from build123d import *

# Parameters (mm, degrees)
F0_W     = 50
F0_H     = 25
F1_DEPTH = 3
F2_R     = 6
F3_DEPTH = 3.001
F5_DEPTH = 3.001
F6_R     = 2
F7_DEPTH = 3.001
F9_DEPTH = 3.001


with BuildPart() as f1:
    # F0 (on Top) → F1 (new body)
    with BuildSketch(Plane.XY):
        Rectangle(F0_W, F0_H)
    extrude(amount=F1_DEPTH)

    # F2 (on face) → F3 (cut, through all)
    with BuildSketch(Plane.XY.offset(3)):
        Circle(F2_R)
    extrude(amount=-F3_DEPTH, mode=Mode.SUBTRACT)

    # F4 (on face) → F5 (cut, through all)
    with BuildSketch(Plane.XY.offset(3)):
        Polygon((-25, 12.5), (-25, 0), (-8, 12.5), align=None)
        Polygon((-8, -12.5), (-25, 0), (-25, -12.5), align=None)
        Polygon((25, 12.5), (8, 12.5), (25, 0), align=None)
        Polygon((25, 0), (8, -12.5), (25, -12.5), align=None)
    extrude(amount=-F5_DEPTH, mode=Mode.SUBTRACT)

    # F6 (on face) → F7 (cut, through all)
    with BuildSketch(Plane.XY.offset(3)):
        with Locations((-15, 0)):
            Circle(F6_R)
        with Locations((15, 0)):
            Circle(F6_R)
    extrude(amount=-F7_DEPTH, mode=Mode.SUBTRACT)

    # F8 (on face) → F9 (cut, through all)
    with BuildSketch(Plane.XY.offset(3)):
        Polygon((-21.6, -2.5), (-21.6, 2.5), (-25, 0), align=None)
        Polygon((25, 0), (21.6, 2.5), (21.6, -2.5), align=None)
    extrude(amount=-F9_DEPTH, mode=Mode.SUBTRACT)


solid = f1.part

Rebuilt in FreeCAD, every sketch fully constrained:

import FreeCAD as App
import Part
import Sketcher

V = App.Vector
Q = App.Units.Quantity


def add_polygon(sketch, points):
    """Adds a closed chain of lines whose ends are joined by coincident constraints."""
    first, n = sketch.GeometryCount, len(points)
    for a, b in zip(points, points[1:] + points[:1]):
        sketch.addGeometry(Part.LineSegment(App.Vector(*a, 0), App.Vector(*b, 0)), False)
    for i in range(n):
        sketch.addConstraint(Sketcher.Constraint("Coincident", first + i, 2, first + (i + 1) % n, 1))

doc = App.newDocument("Part")
body = doc.addObject("PartDesign::Body", "Body")

# Sketch on XY plane
sketch1 = body.newObject("Sketcher::SketchObject", "Sketch")
sketch1.AttachmentSupport = (doc.getObject("XY_Plane"), [""])
sketch1.MapMode = "FlatFace"
add_polygon(sketch1, [(-25, 12), (-25, -12), (25, -12), (25, 12)])  # lines 0-3
sketch1.addConstraint(Sketcher.Constraint("Vertical", 0))
sketch1.addConstraint(Sketcher.Constraint("Horizontal", 1))
sketch1.addConstraint(Sketcher.Constraint("Vertical", 2))
sketch1.addConstraint(Sketcher.Constraint("Horizontal", 3))
sketch1.addConstraint(Sketcher.Constraint("Symmetric", 0, 2, 2, 2, -1, 1))
sketch1.addConstraint(Sketcher.Constraint("DistanceX", 1, 1, 1, 2, Q("50 mm")))
sketch1.addConstraint(Sketcher.Constraint("DistanceY", 0, 2, 0, 1, Q("25 mm")))
pad1 = body.newObject("PartDesign::Pad", "Pad")
pad1.Profile = sketch1
pad1.Length = 3

# Sketch on XY plane
sketch2 = body.newObject("Sketcher::SketchObject", "Sketch001")
sketch2.AttachmentSupport = (doc.getObject("XY_Plane"), [""])
sketch2.MapMode = "FlatFace"
sketch2.AttachmentOffset = App.Placement(V(0, 0, 3), App.Rotation())
sketch2.addGeometry(Part.Circle(V(0, 0, 0), V(0, 0, 1), 6), False)
sketch2.addConstraint(Sketcher.Constraint("Coincident", 0, 3, -1, 1))
sketch2.addConstraint(Sketcher.Constraint("Diameter", 0, Q("12 mm")))
pocket1 = body.newObject("PartDesign::Pocket", "Pocket")
pocket1.Profile = sketch2
pocket1.Type = "ThroughAll"

# Sketch on XY plane
sketch3 = body.newObject("Sketcher::SketchObject", "Sketch002")
sketch3.AttachmentSupport = (doc.getObject("XY_Plane"), [""])
sketch3.MapMode = "FlatFace"
sketch3.AttachmentOffset = App.Placement(V(0, 0, 3), App.Rotation())
add_polygon(sketch3, [(-25, 12), (-25, 0), (-8, 12)])  # lines 0-2
add_polygon(sketch3, [(-8, -12), (-25, 0), (-25, -12)])  # lines 3-5
add_polygon(sketch3, [(25, 12), (8, 12), (25, 0)])  # lines 6-8
add_polygon(sketch3, [(25, 0), (8, -12), (25, -12)])  # lines 9-11
sketch3.addConstraint(Sketcher.Constraint("Vertical", 0))
sketch3.addConstraint(Sketcher.Constraint("Horizontal", 2))
sketch3.addConstraint(Sketcher.Constraint("Vertical", 4))
sketch3.addConstraint(Sketcher.Constraint("Horizontal", 5))
sketch3.addConstraint(Sketcher.Constraint("Horizontal", 6))
sketch3.addConstraint(Sketcher.Constraint("Vertical", 8))
sketch3.addConstraint(Sketcher.Constraint("Horizontal", 10))
sketch3.addConstraint(Sketcher.Constraint("Vertical", 11))
sketch3.addConstraint(Sketcher.Constraint("Coincident", 3, 2, 0, 2))
sketch3.addConstraint(Sketcher.Constraint("Coincident", 11, 2, 7, 2))
sketch3.addConstraint(Sketcher.Constraint("Symmetric", 5, 2, 6, 2, -1, 1))
sketch3.addConstraint(Sketcher.Constraint("Symmetric", 0, 2, 7, 2, -1, 1))
sketch3.addConstraint(Sketcher.Constraint("Symmetric", 1, 2, 9, 2, -1, 1))
sketch3.addConstraint(Sketcher.Constraint("Symmetric", 1, 2, 6, 2, -2))
sketch3.addConstraint(Sketcher.Constraint("PointOnObject", 0, 2, -1))
sketch3.addConstraint(Sketcher.Constraint("DistanceX", 2, 2, 2, 1, Q("17 mm")))
sketch3.addConstraint(Sketcher.Constraint("DistanceY", 0, 2, 0, 1, Q("12.5 mm")))
sketch3.addConstraint(Sketcher.Constraint("DistanceX", 0, 2, -1, 1, Q("25 mm")))
pocket2 = body.newObject("PartDesign::Pocket", "Pocket001")
pocket2.Profile = sketch3
pocket2.Type = "ThroughAll"

# Sketch on XY plane
sketch4 = body.newObject("Sketcher::SketchObject", "Sketch003")
sketch4.AttachmentSupport = (doc.getObject("XY_Plane"), [""])
sketch4.MapMode = "FlatFace"
sketch4.AttachmentOffset = App.Placement(V(0, 0, 3), App.Rotation())
sketch4.addGeometry(Part.Circle(V(-15, 0, 0), V(0, 0, 1), 2), False)
sketch4.addGeometry(Part.Circle(V(15, 0, 0), V(0, 0, 1), 2), False)
sketch4.addConstraint(Sketcher.Constraint("Equal", 0, 1))
sketch4.addConstraint(Sketcher.Constraint("Symmetric", 0, 3, 1, 3, -1, 1))
sketch4.addConstraint(Sketcher.Constraint("PointOnObject", 0, 3, -1))
sketch4.addConstraint(Sketcher.Constraint("Diameter", 0, Q("4 mm")))
sketch4.addConstraint(Sketcher.Constraint("DistanceX", 0, 3, -1, 1, Q("15 mm")))
pocket3 = body.newObject("PartDesign::Pocket", "Pocket002")
pocket3.Profile = sketch4
pocket3.Type = "ThroughAll"

# Sketch on XY plane
sketch5 = body.newObject("Sketcher::SketchObject", "Sketch004")
sketch5.AttachmentSupport = (doc.getObject("XY_Plane"), [""])
sketch5.MapMode = "FlatFace"
sketch5.AttachmentOffset = App.Placement(V(0, 0, 3), App.Rotation())
add_polygon(sketch5, [(-21.6, -2.5), (-21.6, 2.5), (-25, 0)])  # lines 0-2
add_polygon(sketch5, [(25, 0), (21.6, 2.5), (21.6, -2.5)])  # lines 3-5
sketch5.addConstraint(Sketcher.Constraint("Vertical", 0))
sketch5.addConstraint(Sketcher.Constraint("Vertical", 4))
sketch5.addConstraint(Sketcher.Constraint("Symmetric", 2, 2, 3, 2, -1, 1))
sketch5.addConstraint(Sketcher.Constraint("Symmetric", 1, 2, 5, 2, -1, 1))
sketch5.addConstraint(Sketcher.Constraint("PointOnObject", 1, 2, -1))
sketch5.addConstraint(Sketcher.Constraint("Parallel", 1, 5))
sketch5.addConstraint(Sketcher.Constraint("Horizontal", 0, 2, 3, 2))
sketch5.addConstraint(Sketcher.Constraint("DistanceY", 0, 1, 0, 2, Q("5 mm")))
sketch5.addConstraint(Sketcher.Constraint("DistanceX", 1, 2, -1, 1, Q("25 mm")))
sketch5.addConstraint(Sketcher.Constraint("DistanceX", 0, 2, -1, 1, Q("21.6 mm")))
pocket4 = body.newObject("PartDesign::Pocket", "Pocket003")
pocket4.Profile = sketch5
pocket4.Type = "ThroughAll"

doc.recompute()
